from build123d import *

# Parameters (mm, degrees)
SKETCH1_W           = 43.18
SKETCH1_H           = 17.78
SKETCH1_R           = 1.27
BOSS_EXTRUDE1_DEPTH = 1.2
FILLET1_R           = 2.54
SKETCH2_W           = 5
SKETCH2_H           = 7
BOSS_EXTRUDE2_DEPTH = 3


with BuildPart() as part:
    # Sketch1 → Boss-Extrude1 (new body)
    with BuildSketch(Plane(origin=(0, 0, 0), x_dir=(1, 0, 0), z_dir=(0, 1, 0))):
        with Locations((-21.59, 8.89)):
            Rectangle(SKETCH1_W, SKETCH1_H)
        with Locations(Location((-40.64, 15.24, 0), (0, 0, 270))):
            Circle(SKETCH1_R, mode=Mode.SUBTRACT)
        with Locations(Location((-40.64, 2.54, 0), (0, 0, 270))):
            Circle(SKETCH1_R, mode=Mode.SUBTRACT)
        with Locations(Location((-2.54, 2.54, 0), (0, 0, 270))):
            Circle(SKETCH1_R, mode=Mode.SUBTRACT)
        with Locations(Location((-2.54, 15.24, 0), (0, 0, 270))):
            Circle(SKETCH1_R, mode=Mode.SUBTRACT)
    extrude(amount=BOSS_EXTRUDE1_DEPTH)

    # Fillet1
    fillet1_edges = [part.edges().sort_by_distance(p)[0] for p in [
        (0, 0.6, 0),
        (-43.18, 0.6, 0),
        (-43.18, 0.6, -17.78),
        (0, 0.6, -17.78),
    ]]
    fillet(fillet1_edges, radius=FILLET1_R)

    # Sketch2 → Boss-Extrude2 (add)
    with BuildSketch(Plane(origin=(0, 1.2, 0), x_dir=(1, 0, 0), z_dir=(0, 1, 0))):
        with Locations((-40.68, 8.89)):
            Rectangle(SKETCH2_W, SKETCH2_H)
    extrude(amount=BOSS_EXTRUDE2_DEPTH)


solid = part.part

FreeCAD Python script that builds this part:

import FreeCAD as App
import Part
import Sketcher

V = App.Vector


def edges_at(feature, points):
    """Names of the edges that pass closest to the given points."""
    edges = feature.Shape.Edges
    near = lambda p: min(range(len(edges)), key=lambda i: edges[i].distToShape(Part.Vertex(*p))[0])
    return sorted({f"Edge{near(p) + 1}" for p in points})


def add_polygon(sketch, points):
    """Adds a closed chain of lines whose ends are joined by coincident constraints."""
    first, n = sketch.GeometryCount, len(points)
    for a, b in zip(points, points[1:] + points[:1]):
        sketch.addGeometry(Part.LineSegment(App.Vector(*a, 0), App.Vector(*b, 0)), False)
    for i in range(n):
        sketch.addConstraint(Sketcher.Constraint("Coincident", first + i, 2, first + (i + 1) % n, 1))

doc = App.newDocument("Part")
body = doc.addObject("PartDesign::Body", "Body")

# Sketch on XZ plane
sketch1 = body.newObject("Sketcher::SketchObject", "Sketch")
sketch1.AttachmentSupport = (doc.getObject("XZ_Plane"), [""])
sketch1.MapMode = "FlatFace"
add_polygon(sketch1, [(-43.2, -17.8), (-43.2, 0), (0, 0), (0, -17.8)])  # lines 0-3
sketch1.addGeometry(Part.Circle(V(-40.6, -2.5, 0), V(0, 0, 1), 1.3), False)  # 4
sketch1.addGeometry(Part.Circle(V(-2.5, -2.5, 0), V(0, 0, 1), 1.3), False)  # 5
sketch1.addGeometry(Part.Circle(V(-40.6, -15.2, 0), V(0, 0, 1), 1.3), False)  # 6
sketch1.addGeometry(Part.Circle(V(-2.5, -15.2, 0), V(0, 0, 1), 1.3), False)  # 7
sketch1.addConstraint([
    Sketcher.Constraint("Vertical", 0),
    Sketcher.Constraint("Horizontal", 1),
    Sketcher.Constraint("Vertical", 2),
    Sketcher.Constraint("Horizontal", 3),
    Sketcher.Constraint("Coincident", 1, 2, -1, 1),
    Sketcher.Constraint("Equal", 4, 5),
    Sketcher.Constraint("Equal", 5, 6),
    Sketcher.Constraint("Equal", 6, 7),
    Sketcher.Constraint("Horizontal", 4, 3, 5, 3),
    Sketcher.Constraint("Horizontal", 6, 3, 7, 3),
    Sketcher.Constraint("Vertical", 4, 3, 6, 3),
    Sketcher.Constraint("Vertical", 5, 3, 7, 3),
    Sketcher.Constraint("Diameter", 4, 2.54),
    Sketcher.Constraint("DistanceX", 1, 1, 1, 2, 43.18),
    Sketcher.Constraint("DistanceY", 0, 1, 0, 2, 17.78),
    Sketcher.Constraint("DistanceX", 4, 3, 5, 3, 38.1),
    Sketcher.Constraint("DistanceY", 6, 3, 4, 3, 12.7),
    Sketcher.Constraint("DistanceX", 4, 3, -1, 1, 40.64),
    Sketcher.Constraint("DistanceY", 4, 3, -1, 1, 2.54),
])
pad1 = body.newObject("PartDesign::Pad", "Pad")
pad1.Profile = sketch1
pad1.Length = 1.2
pad1.Reversed = True
doc.recompute()

fillet = body.newObject("PartDesign::Fillet", "Fillet")
fillet.Base = (pad1, edges_at(pad1, [
    (0, 0.6, 0),
    (-43.18, 0.6, 0),
    (-43.18, 0.6, -17.78),
    (0, 0.6, -17.78),
]))
fillet.Radius = 2.54

# Sketch on XZ plane
sketch2 = body.newObject("Sketcher::SketchObject", "Sketch001")
sketch2.AttachmentSupport = (doc.getObject("XZ_Plane"), [""])
sketch2.MapMode = "FlatFace"
sketch2.AttachmentOffset = App.Placement(V(0, 0, -1.2), App.Rotation())
add_polygon(sketch2, [(-43, -12), (-43, -5), (-38, -5), (-38, -12)])  # lines 0-3
sketch2.addConstraint([
    Sketcher.Constraint("Vertical", 0),
    Sketcher.Constraint("Horizontal", 1),
    Sketcher.Constraint("Vertical", 2),
    Sketcher.Constraint("Horizontal", 3),
    Sketcher.Constraint("DistanceX", 1, 1, 1, 2, 5.0),
    Sketcher.Constraint("DistanceY", 0, 1, 0, 2, 7.0),
    Sketcher.Constraint("DistanceX", 0, 2, -1, 1, 43.18),
    Sketcher.Constraint("DistanceY", 0, 2, -1, 1, 5.39),
])
pad2 = body.newObject("PartDesign::Pad", "Pad001")
pad2.Profile = sketch2
pad2.Length = 3
pad2.Reversed = True

doc.recompute()
